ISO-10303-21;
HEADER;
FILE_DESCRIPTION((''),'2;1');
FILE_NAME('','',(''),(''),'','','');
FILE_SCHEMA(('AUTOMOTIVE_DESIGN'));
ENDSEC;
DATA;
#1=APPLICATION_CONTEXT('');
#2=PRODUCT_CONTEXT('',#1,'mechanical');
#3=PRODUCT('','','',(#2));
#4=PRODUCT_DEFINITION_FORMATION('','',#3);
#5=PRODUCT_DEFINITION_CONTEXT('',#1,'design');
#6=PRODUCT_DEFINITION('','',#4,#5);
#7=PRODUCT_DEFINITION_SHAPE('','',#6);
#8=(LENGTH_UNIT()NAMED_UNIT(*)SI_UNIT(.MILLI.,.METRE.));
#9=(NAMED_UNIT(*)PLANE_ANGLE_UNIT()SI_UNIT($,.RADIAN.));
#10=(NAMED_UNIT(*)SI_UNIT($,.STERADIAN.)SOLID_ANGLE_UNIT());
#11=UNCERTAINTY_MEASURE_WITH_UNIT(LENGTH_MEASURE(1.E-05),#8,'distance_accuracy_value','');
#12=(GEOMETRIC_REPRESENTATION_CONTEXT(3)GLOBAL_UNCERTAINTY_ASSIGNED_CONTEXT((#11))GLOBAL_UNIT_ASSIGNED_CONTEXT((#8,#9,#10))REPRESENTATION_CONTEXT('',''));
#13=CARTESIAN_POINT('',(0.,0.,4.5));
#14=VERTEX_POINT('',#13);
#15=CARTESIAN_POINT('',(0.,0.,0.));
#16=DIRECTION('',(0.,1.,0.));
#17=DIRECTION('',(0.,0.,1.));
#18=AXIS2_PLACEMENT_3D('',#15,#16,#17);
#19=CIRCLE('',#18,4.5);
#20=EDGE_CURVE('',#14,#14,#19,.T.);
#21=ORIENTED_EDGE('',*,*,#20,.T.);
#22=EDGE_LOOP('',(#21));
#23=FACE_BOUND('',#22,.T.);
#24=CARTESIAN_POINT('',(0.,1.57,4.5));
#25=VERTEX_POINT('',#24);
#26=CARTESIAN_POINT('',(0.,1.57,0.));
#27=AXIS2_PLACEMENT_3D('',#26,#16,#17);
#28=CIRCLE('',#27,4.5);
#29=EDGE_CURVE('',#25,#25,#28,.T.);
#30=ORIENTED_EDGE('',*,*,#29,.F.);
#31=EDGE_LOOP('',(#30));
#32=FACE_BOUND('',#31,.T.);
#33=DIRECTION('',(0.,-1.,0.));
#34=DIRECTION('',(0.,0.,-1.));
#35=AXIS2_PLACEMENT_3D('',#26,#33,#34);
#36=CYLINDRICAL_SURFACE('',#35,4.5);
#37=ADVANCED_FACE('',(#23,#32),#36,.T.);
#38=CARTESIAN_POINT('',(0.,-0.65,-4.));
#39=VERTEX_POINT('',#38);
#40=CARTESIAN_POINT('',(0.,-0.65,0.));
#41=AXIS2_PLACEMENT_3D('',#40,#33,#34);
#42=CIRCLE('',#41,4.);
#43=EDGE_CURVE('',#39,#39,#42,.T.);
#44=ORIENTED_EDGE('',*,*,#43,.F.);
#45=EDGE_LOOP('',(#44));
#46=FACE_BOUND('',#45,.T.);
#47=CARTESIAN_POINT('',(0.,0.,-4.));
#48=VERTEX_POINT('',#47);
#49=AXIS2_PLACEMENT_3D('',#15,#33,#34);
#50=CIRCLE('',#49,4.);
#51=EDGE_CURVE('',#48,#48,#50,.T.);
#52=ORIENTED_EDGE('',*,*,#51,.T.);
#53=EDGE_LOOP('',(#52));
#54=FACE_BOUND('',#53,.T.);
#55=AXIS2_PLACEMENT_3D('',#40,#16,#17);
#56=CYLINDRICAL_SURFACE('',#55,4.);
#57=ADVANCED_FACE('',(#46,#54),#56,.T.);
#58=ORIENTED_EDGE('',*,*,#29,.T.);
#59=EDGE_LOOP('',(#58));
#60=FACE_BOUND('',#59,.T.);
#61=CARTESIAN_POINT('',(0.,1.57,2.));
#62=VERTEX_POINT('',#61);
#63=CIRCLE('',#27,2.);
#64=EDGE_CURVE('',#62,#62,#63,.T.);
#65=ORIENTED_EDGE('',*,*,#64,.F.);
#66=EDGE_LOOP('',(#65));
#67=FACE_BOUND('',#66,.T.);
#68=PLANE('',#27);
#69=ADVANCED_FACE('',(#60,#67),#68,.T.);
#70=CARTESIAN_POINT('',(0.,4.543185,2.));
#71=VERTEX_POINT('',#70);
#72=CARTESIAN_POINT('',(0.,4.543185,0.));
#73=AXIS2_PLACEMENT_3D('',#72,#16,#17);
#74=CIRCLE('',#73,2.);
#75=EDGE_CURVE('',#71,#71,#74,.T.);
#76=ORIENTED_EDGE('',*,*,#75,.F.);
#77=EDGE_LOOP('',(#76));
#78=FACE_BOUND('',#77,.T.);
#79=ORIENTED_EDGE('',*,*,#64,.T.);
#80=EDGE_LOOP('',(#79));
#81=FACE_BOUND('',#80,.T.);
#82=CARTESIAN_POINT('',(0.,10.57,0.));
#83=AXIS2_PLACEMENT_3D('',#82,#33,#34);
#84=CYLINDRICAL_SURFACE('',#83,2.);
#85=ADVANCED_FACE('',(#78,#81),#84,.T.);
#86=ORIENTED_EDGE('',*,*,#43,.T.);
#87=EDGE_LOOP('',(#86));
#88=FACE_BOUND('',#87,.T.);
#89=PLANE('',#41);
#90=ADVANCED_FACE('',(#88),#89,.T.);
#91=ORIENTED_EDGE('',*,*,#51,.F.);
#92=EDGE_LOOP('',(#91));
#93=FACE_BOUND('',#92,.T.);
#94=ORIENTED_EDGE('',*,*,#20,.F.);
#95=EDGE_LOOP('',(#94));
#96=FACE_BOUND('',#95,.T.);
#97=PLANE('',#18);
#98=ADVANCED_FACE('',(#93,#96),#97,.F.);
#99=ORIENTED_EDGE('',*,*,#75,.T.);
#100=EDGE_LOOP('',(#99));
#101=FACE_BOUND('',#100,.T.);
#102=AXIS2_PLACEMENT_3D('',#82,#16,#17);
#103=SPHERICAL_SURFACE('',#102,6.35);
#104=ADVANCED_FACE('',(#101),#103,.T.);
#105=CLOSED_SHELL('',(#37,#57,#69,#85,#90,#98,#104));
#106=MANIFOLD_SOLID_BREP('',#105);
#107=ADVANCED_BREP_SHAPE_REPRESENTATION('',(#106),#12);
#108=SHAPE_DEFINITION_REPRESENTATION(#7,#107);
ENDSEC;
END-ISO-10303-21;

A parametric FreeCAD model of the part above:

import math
import FreeCAD as App
import Part
import Sketcher
Q = App.Units.Quantity

doc = App.newDocument("Part")
body = doc.addObject("PartDesign::Body", "Body")

sketch1 = body.newObject("Sketcher::SketchObject", "Sketch")
sketch1.AttachmentSupport = (doc.getObject("XZ_Plane"), [""])
sketch1.MapMode = "FlatFace"
sketch1.addGeometry(Part.Circle(App.Vector(0, 0, 0), App.Vector(0, 0, 1), 4.5), False)
sketch1.addConstraint([
    Sketcher.Constraint("Coincident", 0, 3, -1, 1),
    Sketcher.Constraint("Diameter", 0, Q("9 mm")),
])
pad1 = body.newObject("PartDesign::Pad", "Pad")
pad1.Profile = sketch1
pad1.Length = 1.57
pad1.Reversed = True

sketch2 = body.newObject("Sketcher::SketchObject", "Sketch001")
sketch2.AttachmentSupport = (doc.getObject("XZ_Plane"), [""])
sketch2.MapMode = "FlatFace"
sketch2.AttachmentOffset = App.Placement(App.Vector(0, 0, -1.57), App.Rotation())
sketch2.addGeometry(Part.Circle(App.Vector(0, 0, 0), App.Vector(0, 0, 1), 2), False)
sketch2.addConstraint([
    Sketcher.Constraint("Coincident", 0, 3, -1, 1),
    Sketcher.Constraint("Diameter", 0, Q("4 mm")),
])
pad2 = body.newObject("PartDesign::Pad", "Pad001")
pad2.Profile = sketch2
pad2.Length = 9
pad2.Reversed = True

sketch3 = body.newObject("Sketcher::SketchObject", "Sketch002")
sketch3.AttachmentSupport = (doc.getObject("XZ_Plane"), [""])
sketch3.MapMode = "FlatFace"
sketch3.AttachmentOffset = App.Placement(App.Vector(0, 0, -10.57), App.Rotation())
sketch3.addGeometry([
    Part.LineSegment(App.Vector(0, -6, 0), App.Vector(0, 6, 0)),
    Part.ArcOfCircle(Part.Circle(App.Vector(0, 0, 0), App.Vector(0, 0, 1), 6), math.radians(-90), math.radians(90)),
], False)
sketch3.addConstraint([
    Sketcher.Constraint("Coincident", 0, 1, 1, 1),
    Sketcher.Constraint("Coincident", 1, 2, 0, 2),
    Sketcher.Constraint("Vertical", 0),
    Sketcher.Constraint("Coincident", 1, 3, -1, 1),
    Sketcher.Constraint("PointOnObject", 0, 1, -2),
    Sketcher.Constraint("Radius", 1, Q("6.35 mm")),
])
revolution = body.newObject("PartDesign::Revolution", "Revolution")
revolution.Profile = sketch3
revolution.ReferenceAxis = (sketch3, ["V_Axis"])
revolution.Angle = 360

sketch4 = body.newObject("Sketcher::SketchObject", "Sketch003")
sketch4.AttachmentSupport = (doc.getObject("XZ_Plane"), [""])
sketch4.MapMode = "FlatFace"
sketch4.addGeometry(Part.Circle(App.Vector(0, 0, 0), App.Vector(0, 0, 1), 4), False)
sketch4.addConstraint([
    Sketcher.Constraint("Coincident", 0, 3, -1, 1),
    Sketcher.Constraint("Diameter", 0, Q("8 mm")),
])
pad3 = body.newObject("PartDesign::Pad", "Pad002")
pad3.Profile = sketch4
pad3.Length = 0.65

doc.recompute()
